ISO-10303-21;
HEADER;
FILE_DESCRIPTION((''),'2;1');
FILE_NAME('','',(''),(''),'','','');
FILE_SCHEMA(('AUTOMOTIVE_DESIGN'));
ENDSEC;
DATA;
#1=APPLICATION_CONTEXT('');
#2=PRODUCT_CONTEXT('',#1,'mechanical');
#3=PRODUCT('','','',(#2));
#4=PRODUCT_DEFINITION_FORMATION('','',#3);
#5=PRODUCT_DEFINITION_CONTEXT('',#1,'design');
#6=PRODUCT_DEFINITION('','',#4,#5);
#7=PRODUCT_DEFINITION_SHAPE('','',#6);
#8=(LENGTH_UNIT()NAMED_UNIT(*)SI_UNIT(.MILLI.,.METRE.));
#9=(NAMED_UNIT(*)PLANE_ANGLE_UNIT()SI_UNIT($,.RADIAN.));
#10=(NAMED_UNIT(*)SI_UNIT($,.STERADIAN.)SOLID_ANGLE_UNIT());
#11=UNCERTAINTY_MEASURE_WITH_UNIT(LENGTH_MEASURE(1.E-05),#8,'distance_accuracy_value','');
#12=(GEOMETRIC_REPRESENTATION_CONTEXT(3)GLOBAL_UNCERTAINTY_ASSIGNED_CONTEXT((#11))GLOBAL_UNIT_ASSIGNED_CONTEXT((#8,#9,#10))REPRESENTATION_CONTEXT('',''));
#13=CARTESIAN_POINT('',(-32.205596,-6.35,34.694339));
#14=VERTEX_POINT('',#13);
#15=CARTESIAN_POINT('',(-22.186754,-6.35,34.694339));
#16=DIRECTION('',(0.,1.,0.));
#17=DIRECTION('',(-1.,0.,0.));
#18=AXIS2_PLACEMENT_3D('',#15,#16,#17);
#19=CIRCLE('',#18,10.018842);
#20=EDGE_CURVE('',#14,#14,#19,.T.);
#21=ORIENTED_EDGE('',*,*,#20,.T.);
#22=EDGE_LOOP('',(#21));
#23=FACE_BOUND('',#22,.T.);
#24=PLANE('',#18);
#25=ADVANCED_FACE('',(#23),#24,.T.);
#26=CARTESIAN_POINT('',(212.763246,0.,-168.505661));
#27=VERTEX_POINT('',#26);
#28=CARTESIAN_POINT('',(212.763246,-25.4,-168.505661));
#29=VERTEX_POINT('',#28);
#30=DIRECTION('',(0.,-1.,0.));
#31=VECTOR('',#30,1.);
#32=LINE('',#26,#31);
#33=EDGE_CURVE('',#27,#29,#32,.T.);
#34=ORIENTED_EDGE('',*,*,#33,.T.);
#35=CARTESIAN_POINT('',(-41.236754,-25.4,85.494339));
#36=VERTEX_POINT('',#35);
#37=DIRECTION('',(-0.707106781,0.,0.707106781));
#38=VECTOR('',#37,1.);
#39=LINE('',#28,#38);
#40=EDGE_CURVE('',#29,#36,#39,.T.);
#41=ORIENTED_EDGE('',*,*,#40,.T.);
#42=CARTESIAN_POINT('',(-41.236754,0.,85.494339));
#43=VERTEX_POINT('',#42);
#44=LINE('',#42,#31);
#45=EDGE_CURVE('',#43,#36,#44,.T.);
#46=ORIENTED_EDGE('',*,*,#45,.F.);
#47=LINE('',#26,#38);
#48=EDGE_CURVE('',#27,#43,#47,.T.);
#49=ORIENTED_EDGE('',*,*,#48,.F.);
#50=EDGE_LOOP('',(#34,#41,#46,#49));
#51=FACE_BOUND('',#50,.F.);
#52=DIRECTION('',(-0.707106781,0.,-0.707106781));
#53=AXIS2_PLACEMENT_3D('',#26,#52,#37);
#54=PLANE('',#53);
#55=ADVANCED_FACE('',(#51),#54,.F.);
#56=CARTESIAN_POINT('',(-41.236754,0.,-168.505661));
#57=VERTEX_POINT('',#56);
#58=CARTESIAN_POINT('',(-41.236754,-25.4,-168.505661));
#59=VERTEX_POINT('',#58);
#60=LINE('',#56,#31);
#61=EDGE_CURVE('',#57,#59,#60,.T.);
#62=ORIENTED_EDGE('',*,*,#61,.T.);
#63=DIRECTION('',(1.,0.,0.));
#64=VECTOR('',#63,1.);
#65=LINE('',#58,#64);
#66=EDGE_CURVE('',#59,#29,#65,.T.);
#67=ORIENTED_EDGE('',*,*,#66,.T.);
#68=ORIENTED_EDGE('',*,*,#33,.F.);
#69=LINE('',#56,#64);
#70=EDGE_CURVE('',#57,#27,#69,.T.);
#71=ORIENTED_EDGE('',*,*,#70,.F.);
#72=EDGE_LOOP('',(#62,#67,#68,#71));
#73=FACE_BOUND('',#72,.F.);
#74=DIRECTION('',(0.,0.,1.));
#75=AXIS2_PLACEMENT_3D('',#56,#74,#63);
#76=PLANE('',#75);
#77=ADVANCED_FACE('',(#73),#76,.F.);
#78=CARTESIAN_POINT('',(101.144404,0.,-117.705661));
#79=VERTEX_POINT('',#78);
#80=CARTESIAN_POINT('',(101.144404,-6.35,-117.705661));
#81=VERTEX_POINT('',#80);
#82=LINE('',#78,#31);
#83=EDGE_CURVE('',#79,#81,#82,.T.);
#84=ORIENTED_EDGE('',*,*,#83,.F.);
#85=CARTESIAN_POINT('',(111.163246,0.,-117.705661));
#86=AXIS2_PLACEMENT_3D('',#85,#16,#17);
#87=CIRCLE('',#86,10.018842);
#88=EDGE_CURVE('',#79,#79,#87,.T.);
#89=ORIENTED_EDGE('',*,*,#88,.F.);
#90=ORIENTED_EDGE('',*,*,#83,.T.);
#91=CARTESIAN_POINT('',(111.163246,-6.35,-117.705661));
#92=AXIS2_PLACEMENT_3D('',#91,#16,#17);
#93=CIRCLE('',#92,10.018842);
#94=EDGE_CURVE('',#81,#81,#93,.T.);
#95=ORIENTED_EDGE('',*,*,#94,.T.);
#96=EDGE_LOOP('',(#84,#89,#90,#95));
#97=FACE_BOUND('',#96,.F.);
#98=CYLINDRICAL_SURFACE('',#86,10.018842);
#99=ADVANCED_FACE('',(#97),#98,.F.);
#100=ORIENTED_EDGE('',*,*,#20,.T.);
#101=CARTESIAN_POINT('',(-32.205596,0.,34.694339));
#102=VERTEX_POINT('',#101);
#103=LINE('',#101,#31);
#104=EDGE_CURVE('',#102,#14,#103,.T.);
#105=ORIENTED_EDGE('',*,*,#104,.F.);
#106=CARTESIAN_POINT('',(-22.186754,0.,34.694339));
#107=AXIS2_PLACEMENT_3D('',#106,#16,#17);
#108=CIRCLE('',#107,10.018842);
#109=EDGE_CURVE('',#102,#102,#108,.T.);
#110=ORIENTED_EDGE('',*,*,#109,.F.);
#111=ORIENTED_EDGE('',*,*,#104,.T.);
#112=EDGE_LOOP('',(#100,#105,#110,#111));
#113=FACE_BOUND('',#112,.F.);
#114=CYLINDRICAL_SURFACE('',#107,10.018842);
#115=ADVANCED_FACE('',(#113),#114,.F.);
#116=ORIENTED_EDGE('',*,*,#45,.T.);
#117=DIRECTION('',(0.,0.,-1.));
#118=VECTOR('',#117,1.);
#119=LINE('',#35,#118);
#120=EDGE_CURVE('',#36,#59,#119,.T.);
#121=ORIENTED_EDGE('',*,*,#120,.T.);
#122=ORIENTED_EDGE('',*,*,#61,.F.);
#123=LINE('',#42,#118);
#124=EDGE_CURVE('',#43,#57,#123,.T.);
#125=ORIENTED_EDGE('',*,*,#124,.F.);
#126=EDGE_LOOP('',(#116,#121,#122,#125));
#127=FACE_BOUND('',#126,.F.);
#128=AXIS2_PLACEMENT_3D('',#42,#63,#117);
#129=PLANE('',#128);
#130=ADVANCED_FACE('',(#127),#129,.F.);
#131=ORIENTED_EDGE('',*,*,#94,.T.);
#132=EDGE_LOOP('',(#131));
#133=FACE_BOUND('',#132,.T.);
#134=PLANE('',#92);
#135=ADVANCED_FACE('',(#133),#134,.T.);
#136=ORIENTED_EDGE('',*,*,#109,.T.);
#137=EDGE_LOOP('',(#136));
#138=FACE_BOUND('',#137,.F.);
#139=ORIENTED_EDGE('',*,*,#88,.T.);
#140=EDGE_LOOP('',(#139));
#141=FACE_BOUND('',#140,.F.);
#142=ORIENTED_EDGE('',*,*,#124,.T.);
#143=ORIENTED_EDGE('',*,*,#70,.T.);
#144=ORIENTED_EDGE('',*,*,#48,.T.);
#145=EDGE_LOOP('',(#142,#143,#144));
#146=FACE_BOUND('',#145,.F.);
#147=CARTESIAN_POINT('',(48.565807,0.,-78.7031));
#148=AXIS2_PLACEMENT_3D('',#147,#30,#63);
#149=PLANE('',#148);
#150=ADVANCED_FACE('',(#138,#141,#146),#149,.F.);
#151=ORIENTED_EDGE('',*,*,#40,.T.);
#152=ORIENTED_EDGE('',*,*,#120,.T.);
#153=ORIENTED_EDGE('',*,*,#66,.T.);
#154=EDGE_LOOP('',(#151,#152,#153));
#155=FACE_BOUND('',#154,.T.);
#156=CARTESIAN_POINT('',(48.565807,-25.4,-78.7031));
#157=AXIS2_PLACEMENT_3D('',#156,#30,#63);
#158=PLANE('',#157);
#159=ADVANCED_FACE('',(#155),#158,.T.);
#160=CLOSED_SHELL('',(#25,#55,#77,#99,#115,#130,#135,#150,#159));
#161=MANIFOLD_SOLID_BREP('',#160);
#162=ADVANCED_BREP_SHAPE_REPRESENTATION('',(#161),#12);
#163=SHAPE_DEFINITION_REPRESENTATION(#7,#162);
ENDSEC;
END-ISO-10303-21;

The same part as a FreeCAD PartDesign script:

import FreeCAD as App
import Part
import Sketcher
from FreeCAD import Vector
Q = App.Units.Quantity


def add_polygon(sketch, points):
    """Adds a closed chain of lines whose ends are joined by coincident constraints."""
    first, n = sketch.GeometryCount, len(points)
    for a, b in zip(points, points[1:] + points[:1]):
        sketch.addGeometry(Part.LineSegment(App.Vector(*a, 0), App.Vector(*b, 0)), False)
    for i in range(n):
        sketch.addConstraint(Sketcher.Constraint("Coincident", first + i, 2, first + (i + 1) % n, 1))

doc = App.newDocument("Part")
params = doc.addObject("Spreadsheet::Sheet", "Params")
for row, (alias, value) in enumerate([
    ("sketch1_width", "10 in"),
    ("pad1_length", "1 in"),
    ("pocket1_length", "0.25 in"),
], start=1):
    params.set(f"A{row}", alias)
    params.set(f"B{row}", "=" + value)
    params.setAlias(f"B{row}", alias)

body = doc.addObject("PartDesign::Body", "Body")

# Sketch on XZ plane
sketch1 = body.newObject("Sketcher::SketchObject", "Sketch")
sketch1.AttachmentSupport = (doc.getObject("XZ_Plane"), [""])
sketch1.MapMode = "FlatFace"
add_polygon(sketch1, [(213, -169), (-41, 85), (-41, -169)])  # lines 0-2
sketch1.addConstraint([
    Sketcher.Constraint("Vertical", 1),
    Sketcher.Constraint("Horizontal", 2),
    Sketcher.Constraint("Equal", 2, 1),
    Sketcher.Constraint("DistanceX", 2, 1, 2, 2, Q("10 in")),
    Sketcher.Constraint("DistanceY", -1, 1, 0, 2, Q("85.494339 mm")),
    Sketcher.Constraint("DistanceX", 0, 2, -1, 1, Q("41.236754 mm")),
])
sketch1.setExpression("Constraints[6]", "Params.sketch1_width")
pad1 = body.newObject("PartDesign::Pad", "Pad")
pad1.Profile = sketch1
pad1.setExpression("Length", "Params.pad1_length")

# Sketch on XZ plane
sketch2 = body.newObject("Sketcher::SketchObject", "Sketch001")
sketch2.AttachmentSupport = (doc.getObject("XZ_Plane"), [""])
sketch2.MapMode = "FlatFace"
sketch2.addGeometry([
    Part.Circle(Vector(-22, 35, 0), Vector(0, 0, 1), 10),
    Part.Circle(Vector(111, -118, 0), Vector(0, 0, 1), 10),
], False)
sketch2.addConstraint([
    Sketcher.Constraint("Equal", 0, 1),
    Sketcher.Constraint("DistanceY", 1, 3, 0, 3, Q("6 in")),
    Sketcher.Constraint("DistanceX", 0, 3, 1, 3, Q("5.25 in")),
    Sketcher.Constraint("Diameter", 0, Q("20.037684 mm")),
    Sketcher.Constraint("DistanceY", -1, 1, 0, 3, Q("34.694339 mm")),
    Sketcher.Constraint("DistanceX", 0, 3, -1, 1, Q("22.186754 mm")),
])
pocket1 = body.newObject("PartDesign::Pocket", "Pocket")
pocket1.Profile = sketch2
pocket1.setExpression("Length", "Params.pocket1_length")
pocket1.Reversed = True

doc.recompute()
